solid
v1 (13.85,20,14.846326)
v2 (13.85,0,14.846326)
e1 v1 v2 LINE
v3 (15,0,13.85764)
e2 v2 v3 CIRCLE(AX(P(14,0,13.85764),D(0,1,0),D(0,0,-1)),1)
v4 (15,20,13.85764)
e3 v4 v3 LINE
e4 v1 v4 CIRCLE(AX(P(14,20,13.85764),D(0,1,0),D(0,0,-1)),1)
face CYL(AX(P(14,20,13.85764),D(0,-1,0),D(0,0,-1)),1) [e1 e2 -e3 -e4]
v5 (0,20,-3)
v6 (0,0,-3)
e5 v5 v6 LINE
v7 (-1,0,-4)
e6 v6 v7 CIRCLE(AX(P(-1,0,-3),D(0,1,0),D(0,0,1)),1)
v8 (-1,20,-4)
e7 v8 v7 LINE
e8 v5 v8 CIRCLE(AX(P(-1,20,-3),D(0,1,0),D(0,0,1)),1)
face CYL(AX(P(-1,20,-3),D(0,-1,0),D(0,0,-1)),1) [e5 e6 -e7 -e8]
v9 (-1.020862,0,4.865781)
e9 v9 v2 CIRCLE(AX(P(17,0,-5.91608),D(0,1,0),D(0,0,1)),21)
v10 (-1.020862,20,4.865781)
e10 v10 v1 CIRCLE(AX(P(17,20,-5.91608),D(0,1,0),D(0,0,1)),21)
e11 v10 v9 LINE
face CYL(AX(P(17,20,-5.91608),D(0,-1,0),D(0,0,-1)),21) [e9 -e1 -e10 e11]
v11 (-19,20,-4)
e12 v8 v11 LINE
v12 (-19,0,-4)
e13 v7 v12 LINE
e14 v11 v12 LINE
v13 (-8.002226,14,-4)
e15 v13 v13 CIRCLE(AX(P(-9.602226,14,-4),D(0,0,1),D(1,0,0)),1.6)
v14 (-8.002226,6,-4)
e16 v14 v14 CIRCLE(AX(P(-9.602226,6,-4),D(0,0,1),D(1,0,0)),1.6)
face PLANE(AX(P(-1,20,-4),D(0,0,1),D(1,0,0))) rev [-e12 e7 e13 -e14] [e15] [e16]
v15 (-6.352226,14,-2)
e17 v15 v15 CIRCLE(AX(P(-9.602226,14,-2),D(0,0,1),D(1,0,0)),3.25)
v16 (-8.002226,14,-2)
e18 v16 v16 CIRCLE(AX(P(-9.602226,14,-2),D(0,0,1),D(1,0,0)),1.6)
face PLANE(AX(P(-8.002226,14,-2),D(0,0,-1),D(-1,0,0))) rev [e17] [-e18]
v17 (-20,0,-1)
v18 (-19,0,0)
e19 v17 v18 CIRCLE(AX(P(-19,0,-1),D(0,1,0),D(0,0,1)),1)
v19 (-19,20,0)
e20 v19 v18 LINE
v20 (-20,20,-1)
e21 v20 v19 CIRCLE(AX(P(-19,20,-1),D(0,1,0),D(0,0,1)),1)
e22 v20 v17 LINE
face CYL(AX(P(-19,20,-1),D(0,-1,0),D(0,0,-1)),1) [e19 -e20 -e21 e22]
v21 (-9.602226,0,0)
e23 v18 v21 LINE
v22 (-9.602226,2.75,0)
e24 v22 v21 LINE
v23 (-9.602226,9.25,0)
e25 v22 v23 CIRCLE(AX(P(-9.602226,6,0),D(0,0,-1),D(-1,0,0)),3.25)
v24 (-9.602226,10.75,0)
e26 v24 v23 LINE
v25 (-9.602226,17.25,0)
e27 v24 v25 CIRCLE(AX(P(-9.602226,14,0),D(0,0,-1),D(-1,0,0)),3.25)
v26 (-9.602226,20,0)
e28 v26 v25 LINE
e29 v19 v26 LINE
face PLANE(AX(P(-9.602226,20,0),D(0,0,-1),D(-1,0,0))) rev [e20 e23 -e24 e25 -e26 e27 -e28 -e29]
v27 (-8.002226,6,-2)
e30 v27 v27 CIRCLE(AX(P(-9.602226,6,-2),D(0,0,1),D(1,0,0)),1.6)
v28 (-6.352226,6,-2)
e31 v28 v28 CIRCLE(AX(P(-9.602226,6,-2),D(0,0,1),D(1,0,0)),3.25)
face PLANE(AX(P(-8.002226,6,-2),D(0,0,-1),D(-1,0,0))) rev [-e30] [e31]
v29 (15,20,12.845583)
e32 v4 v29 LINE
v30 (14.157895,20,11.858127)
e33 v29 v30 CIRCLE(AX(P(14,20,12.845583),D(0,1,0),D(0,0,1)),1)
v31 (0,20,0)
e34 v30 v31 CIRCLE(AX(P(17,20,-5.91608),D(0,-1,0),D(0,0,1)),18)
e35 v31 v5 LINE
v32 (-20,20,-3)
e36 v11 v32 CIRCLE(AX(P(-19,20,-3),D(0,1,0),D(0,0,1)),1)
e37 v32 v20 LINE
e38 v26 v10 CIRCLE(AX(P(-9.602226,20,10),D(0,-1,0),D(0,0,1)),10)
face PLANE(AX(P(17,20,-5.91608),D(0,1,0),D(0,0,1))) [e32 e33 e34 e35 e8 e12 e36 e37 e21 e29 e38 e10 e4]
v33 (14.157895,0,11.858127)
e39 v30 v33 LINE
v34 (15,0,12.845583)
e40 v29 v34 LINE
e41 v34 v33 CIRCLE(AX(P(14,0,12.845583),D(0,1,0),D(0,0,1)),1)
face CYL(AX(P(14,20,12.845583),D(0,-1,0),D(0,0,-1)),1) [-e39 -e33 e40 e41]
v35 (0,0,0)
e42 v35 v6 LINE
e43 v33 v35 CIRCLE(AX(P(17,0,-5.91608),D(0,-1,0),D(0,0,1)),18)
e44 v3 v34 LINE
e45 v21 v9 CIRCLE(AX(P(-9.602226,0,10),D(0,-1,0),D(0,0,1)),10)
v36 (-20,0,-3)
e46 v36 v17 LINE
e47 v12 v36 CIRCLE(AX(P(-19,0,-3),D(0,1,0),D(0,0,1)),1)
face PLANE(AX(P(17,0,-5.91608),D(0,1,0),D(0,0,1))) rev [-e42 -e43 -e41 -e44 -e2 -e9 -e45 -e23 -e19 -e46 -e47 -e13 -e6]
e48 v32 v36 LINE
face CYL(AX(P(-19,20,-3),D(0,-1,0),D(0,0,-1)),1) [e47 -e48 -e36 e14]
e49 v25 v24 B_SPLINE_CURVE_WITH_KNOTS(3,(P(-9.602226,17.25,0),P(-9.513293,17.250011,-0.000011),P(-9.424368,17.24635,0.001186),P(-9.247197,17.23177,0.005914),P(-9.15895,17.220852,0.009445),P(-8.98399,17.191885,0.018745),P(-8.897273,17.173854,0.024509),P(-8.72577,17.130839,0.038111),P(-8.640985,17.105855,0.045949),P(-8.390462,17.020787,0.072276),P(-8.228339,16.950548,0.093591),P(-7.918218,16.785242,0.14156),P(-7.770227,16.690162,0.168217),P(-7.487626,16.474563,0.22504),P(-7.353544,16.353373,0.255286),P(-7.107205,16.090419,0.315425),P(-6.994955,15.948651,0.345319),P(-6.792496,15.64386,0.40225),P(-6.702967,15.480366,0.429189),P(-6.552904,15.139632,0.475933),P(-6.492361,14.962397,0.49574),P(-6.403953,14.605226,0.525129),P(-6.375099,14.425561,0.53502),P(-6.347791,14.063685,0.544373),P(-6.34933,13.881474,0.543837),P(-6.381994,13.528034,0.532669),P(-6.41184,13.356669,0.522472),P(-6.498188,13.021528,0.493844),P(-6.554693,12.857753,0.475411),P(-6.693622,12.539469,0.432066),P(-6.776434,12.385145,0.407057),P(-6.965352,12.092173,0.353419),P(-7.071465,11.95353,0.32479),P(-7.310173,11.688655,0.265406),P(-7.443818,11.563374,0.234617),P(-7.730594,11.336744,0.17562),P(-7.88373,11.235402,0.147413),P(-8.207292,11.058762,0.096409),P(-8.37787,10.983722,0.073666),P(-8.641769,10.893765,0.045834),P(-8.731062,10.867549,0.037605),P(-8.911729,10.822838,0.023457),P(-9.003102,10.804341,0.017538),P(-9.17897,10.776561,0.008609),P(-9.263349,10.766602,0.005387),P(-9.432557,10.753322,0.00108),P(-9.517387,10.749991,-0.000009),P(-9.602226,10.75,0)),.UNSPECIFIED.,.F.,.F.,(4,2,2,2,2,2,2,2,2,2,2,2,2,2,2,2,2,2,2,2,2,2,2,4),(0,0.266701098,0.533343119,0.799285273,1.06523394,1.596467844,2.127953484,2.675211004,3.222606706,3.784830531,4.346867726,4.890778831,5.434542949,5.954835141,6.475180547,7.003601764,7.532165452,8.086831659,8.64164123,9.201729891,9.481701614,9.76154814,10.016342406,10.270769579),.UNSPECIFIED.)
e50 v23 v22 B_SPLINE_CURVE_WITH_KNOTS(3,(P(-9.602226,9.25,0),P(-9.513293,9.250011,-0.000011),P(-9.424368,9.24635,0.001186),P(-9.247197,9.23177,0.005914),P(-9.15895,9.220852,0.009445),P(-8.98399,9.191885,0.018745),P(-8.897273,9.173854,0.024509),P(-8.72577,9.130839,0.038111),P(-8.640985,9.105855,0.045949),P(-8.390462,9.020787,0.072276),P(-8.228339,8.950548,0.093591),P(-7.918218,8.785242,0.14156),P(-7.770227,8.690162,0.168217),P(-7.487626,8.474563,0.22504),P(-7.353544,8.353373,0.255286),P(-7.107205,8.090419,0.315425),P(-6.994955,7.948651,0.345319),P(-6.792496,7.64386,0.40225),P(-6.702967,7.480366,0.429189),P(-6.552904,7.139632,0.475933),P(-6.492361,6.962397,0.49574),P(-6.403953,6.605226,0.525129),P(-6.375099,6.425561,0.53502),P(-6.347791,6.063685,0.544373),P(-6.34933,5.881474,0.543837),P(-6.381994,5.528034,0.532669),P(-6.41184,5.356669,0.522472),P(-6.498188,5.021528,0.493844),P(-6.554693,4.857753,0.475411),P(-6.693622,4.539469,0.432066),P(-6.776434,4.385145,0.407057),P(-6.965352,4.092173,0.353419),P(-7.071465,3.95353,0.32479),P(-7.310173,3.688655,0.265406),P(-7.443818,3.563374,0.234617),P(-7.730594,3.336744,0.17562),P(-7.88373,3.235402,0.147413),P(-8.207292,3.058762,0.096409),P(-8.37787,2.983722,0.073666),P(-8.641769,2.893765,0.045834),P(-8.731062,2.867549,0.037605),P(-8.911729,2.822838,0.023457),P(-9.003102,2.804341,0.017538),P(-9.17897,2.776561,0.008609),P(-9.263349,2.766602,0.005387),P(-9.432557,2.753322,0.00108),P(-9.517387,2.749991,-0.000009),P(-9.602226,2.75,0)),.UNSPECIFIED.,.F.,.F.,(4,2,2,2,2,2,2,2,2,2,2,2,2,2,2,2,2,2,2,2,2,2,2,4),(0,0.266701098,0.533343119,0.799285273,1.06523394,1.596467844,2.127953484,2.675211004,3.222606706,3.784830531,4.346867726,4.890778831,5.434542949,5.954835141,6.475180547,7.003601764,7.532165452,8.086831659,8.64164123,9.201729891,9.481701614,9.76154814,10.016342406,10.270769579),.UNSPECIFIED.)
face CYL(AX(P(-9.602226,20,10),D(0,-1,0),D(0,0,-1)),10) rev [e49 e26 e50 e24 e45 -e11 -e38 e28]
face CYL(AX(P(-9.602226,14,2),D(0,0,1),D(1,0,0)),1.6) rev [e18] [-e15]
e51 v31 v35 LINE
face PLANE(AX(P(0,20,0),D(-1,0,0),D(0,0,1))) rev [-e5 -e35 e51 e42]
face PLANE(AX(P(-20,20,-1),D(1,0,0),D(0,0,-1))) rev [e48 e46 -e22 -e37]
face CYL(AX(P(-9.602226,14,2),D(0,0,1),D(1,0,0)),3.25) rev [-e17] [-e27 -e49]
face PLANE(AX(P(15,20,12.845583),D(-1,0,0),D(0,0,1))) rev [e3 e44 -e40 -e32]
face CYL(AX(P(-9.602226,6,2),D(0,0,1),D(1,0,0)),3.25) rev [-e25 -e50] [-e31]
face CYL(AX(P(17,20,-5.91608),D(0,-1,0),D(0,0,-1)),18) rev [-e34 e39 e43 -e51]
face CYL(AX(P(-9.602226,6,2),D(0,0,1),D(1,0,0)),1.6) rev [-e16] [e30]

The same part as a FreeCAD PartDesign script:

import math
import FreeCAD as App
import Part
import Sketcher
from FreeCAD import Vector

doc = App.newDocument("Part")
body = doc.addObject("PartDesign::Body", "Body")

# Sketch on XZ plane
sketch1 = body.newObject("Sketcher::SketchObject", "Sketch")
sketch1.AttachmentSupport = (doc.getObject("XZ_Plane"), [""])
sketch1.MapMode = "FlatFace"
sketch1.addGeometry([
    Part.LineSegment(Vector(15, 13.9, 0), Vector(15, 12.8, 0)),  # 0
    Part.ArcOfCircle(Part.Circle(Vector(14, 12.8, 0), Vector(0, 0, 1), 1), math.radians(-81), math.radians(0)),  # 1
    Part.ArcOfCircle(Part.Circle(Vector(17, -5.9, 0), Vector(0, 0, 1), 18), math.radians(99), math.radians(161)),  # 2
    Part.LineSegment(Vector(0, 0, 0), Vector(0, -3, 0)),  # 3
    Part.ArcOfCircle(Part.Circle(Vector(-1, -3, 0), Vector(0, 0, 1), 1), math.radians(-90), math.radians(0)),  # 4
    Part.LineSegment(Vector(-1, -4, 0), Vector(-19, -4, 0)),  # 5
    Part.ArcOfCircle(Part.Circle(Vector(-19, -3, 0), Vector(0, 0, 1), 1), math.radians(-180), math.radians(-90)),  # 6
    Part.LineSegment(Vector(-20, -3, 0), Vector(-20, -1, 0)),  # 7
    Part.ArcOfCircle(Part.Circle(Vector(-19, -1, 0), Vector(0, 0, 1), 1), math.radians(90), math.radians(180)),  # 8
    Part.LineSegment(Vector(-19, 0, 0), Vector(-9.6, 0, 0)),  # 9
    Part.ArcOfCircle(Part.Circle(Vector(-9.6, 10, 0), Vector(0, 0, 1), 10), math.radians(-90), math.radians(-31)),  # 10
    Part.ArcOfCircle(Part.Circle(Vector(17, -5.9, 0), Vector(0, 0, 1), 21), math.radians(99), math.radians(149)),  # 11
    Part.ArcOfCircle(Part.Circle(Vector(14, 13.9, 0), Vector(0, 0, 1), 1), math.radians(0), math.radians(99)),  # 12
], False)
sketch1.addConstraint([
    Sketcher.Constraint("Tangent", 0, 2, 1, 2),
    Sketcher.Constraint("Tangent", 1, 1, 2, 1),
    Sketcher.Constraint("Coincident", 2, 2, 3, 1),
    Sketcher.Constraint("Tangent", 3, 2, 4, 2),
    Sketcher.Constraint("Tangent", 4, 1, 5, 1),
    Sketcher.Constraint("Tangent", 5, 2, 6, 2),
    Sketcher.Constraint("Tangent", 6, 1, 7, 1),
    Sketcher.Constraint("Tangent", 7, 2, 8, 2),
    Sketcher.Constraint("Tangent", 8, 1, 9, 1),
    Sketcher.Constraint("Tangent", 9, 2, 10, 1),
    Sketcher.Constraint("Tangent", 10, 2, 11, 2),
    Sketcher.Constraint("Tangent", 11, 1, 12, 2),
    Sketcher.Constraint("Tangent", 12, 1, 0, 1),
    Sketcher.Constraint("Vertical", 0),
    Sketcher.Constraint("Vertical", 3),
    Sketcher.Constraint("Horizontal", 5),
    Sketcher.Constraint("Vertical", 7),
    Sketcher.Constraint("Horizontal", 9),
    Sketcher.Constraint("Coincident", 2, 2, -1, 1),
    Sketcher.Constraint("Coincident", 11, 3, 2, 3),
    Sketcher.Constraint("Equal", 1, 4),
    Sketcher.Constraint("Equal", 4, 6),
    Sketcher.Constraint("Equal", 6, 8),
    Sketcher.Constraint("Equal", 8, 12),
    Sketcher.Constraint("PointOnObject", 8, 1, -1),
    Sketcher.Constraint("Radius", 1, 1.0),
    Sketcher.Constraint("Radius", 2, 18.0),
    Sketcher.Constraint("Radius", 10, 10.0),
    Sketcher.Constraint("Radius", 11, 21.0),
    Sketcher.Constraint("DistanceX", 5, 2, 5, 1, 18.0),
    Sketcher.Constraint("DistanceY", 3, 2, 3, 1, 3.0),
    Sketcher.Constraint("DistanceX", -1, 1, 1, 3, 14.0),
    Sketcher.Constraint("DistanceX", -1, 1, 2, 3, 17.0),
])
pad1 = body.newObject("PartDesign::Pad", "Pad")
pad1.Profile = sketch1
pad1.Length = 20
pad1.Reversed = True

# Sketch on XY plane
sketch2 = body.newObject("Sketcher::SketchObject", "Sketch001")
sketch2.AttachmentSupport = (doc.getObject("XY_Plane"), [""])
sketch2.MapMode = "FlatFace"
sketch2.AttachmentOffset = App.Placement(Vector(0, 0, 2), App.Rotation())
sketch2.addGeometry([
    Part.Circle(Vector(-9.6, 14, 0), Vector(0, 0, 1), 1.6),
    Part.Circle(Vector(-9.6, 6, 0), Vector(0, 0, 1), 1.6),
], False)
sketch2.addConstraint([
    Sketcher.Constraint("Equal", 0, 1),
    Sketcher.Constraint("Vertical", 0, 3, 1, 3),
    Sketcher.Constraint("Diameter", 0, 3.2),
    Sketcher.Constraint("DistanceY", -1, 1, 0, 3, 14.0),
    Sketcher.Constraint("DistanceY", -1, 1, 1, 3, 6.0),
    Sketcher.Constraint("DistanceX", 0, 3, -1, 1, 9.602226),
])
doc.recompute()
hole = body.newObject("PartDesign::Hole", "Hole")
hole.Profile = sketch2
hole.ThreadType = "None"
hole.Diameter = 3.2
hole.DepthType = "ThroughAll"
hole.HoleCutType = "Counterbore"
hole.HoleCutDiameter = 6.5
hole.HoleCutDepth = 4

doc.recompute()
